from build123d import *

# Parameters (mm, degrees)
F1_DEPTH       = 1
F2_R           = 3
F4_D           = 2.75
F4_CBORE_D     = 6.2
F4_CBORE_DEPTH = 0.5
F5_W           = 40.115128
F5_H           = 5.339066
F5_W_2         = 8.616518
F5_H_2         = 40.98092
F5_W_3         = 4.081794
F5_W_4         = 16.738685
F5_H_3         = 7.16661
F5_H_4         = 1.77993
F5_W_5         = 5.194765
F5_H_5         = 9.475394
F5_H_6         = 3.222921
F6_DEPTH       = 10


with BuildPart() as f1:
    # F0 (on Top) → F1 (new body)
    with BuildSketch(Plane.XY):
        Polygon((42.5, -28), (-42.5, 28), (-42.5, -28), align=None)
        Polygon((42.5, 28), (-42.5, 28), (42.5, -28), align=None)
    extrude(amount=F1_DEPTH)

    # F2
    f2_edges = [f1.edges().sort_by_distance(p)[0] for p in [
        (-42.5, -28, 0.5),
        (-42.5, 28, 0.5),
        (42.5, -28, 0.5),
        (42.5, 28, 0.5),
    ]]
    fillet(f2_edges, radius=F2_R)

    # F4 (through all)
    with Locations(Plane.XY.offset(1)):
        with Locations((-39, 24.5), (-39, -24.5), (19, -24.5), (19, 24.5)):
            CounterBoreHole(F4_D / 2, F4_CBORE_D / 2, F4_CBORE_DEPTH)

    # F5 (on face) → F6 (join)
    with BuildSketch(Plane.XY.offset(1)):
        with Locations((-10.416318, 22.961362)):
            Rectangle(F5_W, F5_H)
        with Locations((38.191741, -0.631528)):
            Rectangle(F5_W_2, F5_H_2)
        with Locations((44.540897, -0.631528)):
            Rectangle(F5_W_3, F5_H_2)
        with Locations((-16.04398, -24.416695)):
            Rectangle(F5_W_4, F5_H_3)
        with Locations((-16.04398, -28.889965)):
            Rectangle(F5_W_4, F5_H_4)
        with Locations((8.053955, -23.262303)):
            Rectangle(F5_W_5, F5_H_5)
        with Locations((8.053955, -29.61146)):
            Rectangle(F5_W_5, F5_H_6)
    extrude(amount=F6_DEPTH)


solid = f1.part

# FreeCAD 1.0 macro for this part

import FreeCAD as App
import Part
import Sketcher
Q = App.Units.Quantity


def edges_at(feature, points):
    """Names of the edges that pass closest to the given points."""
    edges = feature.Shape.Edges
    near = lambda p: min(range(len(edges)), key=lambda i: edges[i].distToShape(Part.Vertex(*p))[0])
    return sorted({f"Edge{near(p) + 1}" for p in points})

doc = App.newDocument("Part")
body = doc.addObject("PartDesign::Body", "Body")

# Sketch on XY plane
sketch1 = doc.addObject("Sketcher::SketchObject", "Sketch")
body.addObject(sketch1)
sketch1.AttachmentSupport = (doc.XY_Plane, [""])
sketch1.MapMode = "FlatFace"
sketch1.addGeometry([
    Part.LineSegment(App.Vector(-42, 28, 0), App.Vector(-42, -28, 0)),
    Part.LineSegment(App.Vector(-42, -28, 0), App.Vector(42, -28, 0)),
    Part.LineSegment(App.Vector(42, -28, 0), App.Vector(42, 28, 0)),
    Part.LineSegment(App.Vector(42, 28, 0), App.Vector(-42, 28, 0)),
], False)
sketch1.addConstraint([
    Sketcher.Constraint("Coincident", 0, 2, 1, 1),
    Sketcher.Constraint("Coincident", 1, 2, 2, 1),
    Sketcher.Constraint("Coincident", 2, 2, 3, 1),
    Sketcher.Constraint("Coincident", 3, 2, 0, 1),
    Sketcher.Constraint("Vertical", 0),
    Sketcher.Constraint("Horizontal", 1),
    Sketcher.Constraint("Vertical", 2),
    Sketcher.Constraint("Horizontal", 3),
    Sketcher.Constraint("Symmetric", 0, 2, 2, 2, -1, 1),
    Sketcher.Constraint("DistanceX", 1, 1, 1, 2, Q("85 mm")),
    Sketcher.Constraint("DistanceY", 0, 2, 0, 1, Q("56 mm")),
])
pad1 = doc.addObject("PartDesign::Pad", "Pad")
body.addObject(pad1)
pad1.Profile = sketch1
pad1.Length = 1
doc.recompute()

fillet = doc.addObject("PartDesign::Fillet", "Fillet")
body.addObject(fillet)
fillet.Base = (pad1, edges_at(pad1, [
    (-42.5, -28, 0.5),
    (-42.5, 28, 0.5),
    (42.5, -28, 0.5),
    (42.5, 28, 0.5),
]))
fillet.Radius = 3

# Sketch on XY plane
sketch2 = doc.addObject("Sketcher::SketchObject", "Sketch001")
body.addObject(sketch2)
sketch2.AttachmentSupport = (doc.XY_Plane, [""])
sketch2.MapMode = "FlatFace"
sketch2.AttachmentOffset = App.Placement(App.Vector(0, 0, 1), App.Rotation())
sketch2.addGeometry([
    Part.Circle(App.Vector(-39, 24.5, 0), App.Vector(0, 0, 1), 1.4),
    Part.Circle(App.Vector(-39, -24.5, 0), App.Vector(0, 0, 1), 1.4),
    Part.Circle(App.Vector(19, -24.5, 0), App.Vector(0, 0, 1), 1.4),
    Part.Circle(App.Vector(19, 24.5, 0), App.Vector(0, 0, 1), 1.4),
], False)
sketch2.addConstraint([
    Sketcher.Constraint("Equal", 0, 1),
    Sketcher.Constraint("Equal", 1, 2),
    Sketcher.Constraint("Equal", 2, 3),
    Sketcher.Constraint("Symmetric", 0, 3, 1, 3, -1),
    Sketcher.Constraint("Symmetric", 2, 3, 3, 3, -1),
    Sketcher.Constraint("Horizontal", 1, 3, 2, 3),
    Sketcher.Constraint("Diameter", 0, Q("2.75 mm")),
    Sketcher.Constraint("DistanceX", 0, 3, -1, 1, Q("39 mm")),
    Sketcher.Constraint("DistanceX", -1, 1, 2, 3, Q("19 mm")),
    Sketcher.Constraint("DistanceY", 1, 3, 0, 3, Q("49 mm")),
])
doc.recompute()
hole = doc.addObject("PartDesign::Hole", "Hole")
body.addObject(hole)
hole.Profile = sketch2
hole.ThreadType = "None"
hole.Diameter = 2.75
hole.DepthType = "ThroughAll"
hole.HoleCutType = "Counterbore"
hole.HoleCutDiameter = 6.2
hole.HoleCutDepth = 0.5

# Sketch on XY plane
sketch3 = doc.addObject("Sketcher::SketchObject", "Sketch002")
body.addObject(sketch3)
sketch3.AttachmentSupport = (doc.XY_Plane, [""])
sketch3.MapMode = "FlatFace"
sketch3.AttachmentOffset = App.Placement(App.Vector(0, 0, 1), App.Rotation())
sketch3.addGeometry([
    Part.LineSegment(App.Vector(-30, 26, 0), App.Vector(-30, 20, 0)),  # 0
    Part.LineSegment(App.Vector(-30, 20, 0), App.Vector(10, 20, 0)),  # 1
    Part.LineSegment(App.Vector(10, 20, 0), App.Vector(10, 26, 0)),  # 2
    Part.LineSegment(App.Vector(10, 26, 0), App.Vector(-30, 26, 0)),  # 3
    Part.LineSegment(App.Vector(34, 20, 0), App.Vector(34, -21, 0)),  # 4
    Part.LineSegment(App.Vector(34, -21, 0), App.Vector(47, -21, 0)),  # 5
    Part.LineSegment(App.Vector(47, -21, 0), App.Vector(47, 20, 0)),  # 6
    Part.LineSegment(App.Vector(47, 20, 0), App.Vector(34, 20, 0)),  # 7
    Part.LineSegment(App.Vector(-24, -21, 0), App.Vector(-24, -30, 0)),  # 8
    Part.LineSegment(App.Vector(-24, -30, 0), App.Vector(-8, -30, 0)),  # 9
    Part.LineSegment(App.Vector(-8, -30, 0), App.Vector(-8, -21, 0)),  # 10
    Part.LineSegment(App.Vector(-8, -21, 0), App.Vector(-24, -21, 0)),  # 11
    Part.LineSegment(App.Vector(5, -31, 0), App.Vector(11, -31, 0)),  # 12
    Part.LineSegment(App.Vector(11, -31, 0), App.Vector(11, -19, 0)),  # 13
    Part.LineSegment(App.Vector(11, -19, 0), App.Vector(5, -19, 0)),  # 14
    Part.LineSegment(App.Vector(5, -19, 0), App.Vector(5, -31, 0)),  # 15
], False)
sketch3.addConstraint([
    Sketcher.Constraint("Coincident", 0, 2, 1, 1),
    Sketcher.Constraint("Coincident", 1, 2, 2, 1),
    Sketcher.Constraint("Coincident", 2, 2, 3, 1),
    Sketcher.Constraint("Coincident", 3, 2, 0, 1),
    Sketcher.Constraint("Coincident", 4, 2, 5, 1),
    Sketcher.Constraint("Coincident", 5, 2, 6, 1),
    Sketcher.Constraint("Coincident", 6, 2, 7, 1),
    Sketcher.Constraint("Coincident", 7, 2, 4, 1),
    Sketcher.Constraint("Coincident", 8, 2, 9, 1),
    Sketcher.Constraint("Coincident", 9, 2, 10, 1),
    Sketcher.Constraint("Coincident", 10, 2, 11, 1),
    Sketcher.Constraint("Coincident", 11, 2, 8, 1),
    Sketcher.Constraint("Coincident", 12, 2, 13, 1),
    Sketcher.Constraint("Coincident", 13, 2, 14, 1),
    Sketcher.Constraint("Coincident", 14, 2, 15, 1),
    Sketcher.Constraint("Coincident", 15, 2, 12, 1),
    Sketcher.Constraint("Vertical", 0),
    Sketcher.Constraint("Horizontal", 1),
    Sketcher.Constraint("Vertical", 2),
    Sketcher.Constraint("Horizontal", 3),
    Sketcher.Constraint("Vertical", 4),
    Sketcher.Constraint("Horizontal", 5),
    Sketcher.Constraint("Vertical", 6),
    Sketcher.Constraint("Horizontal", 7),
    Sketcher.Constraint("Vertical", 8),
    Sketcher.Constraint("Horizontal", 9),
    Sketcher.Constraint("Vertical", 10),
    Sketcher.Constraint("Horizontal", 11),
    Sketcher.Constraint("Horizontal", 12),
    Sketcher.Constraint("Vertical", 13),
    Sketcher.Constraint("Horizontal", 14),
    Sketcher.Constraint("Vertical", 15),
    Sketcher.Constraint("DistanceY", 4, 2, 4, 1, Q("40.98092 mm")),
    Sketcher.Constraint("DistanceY", 8, 2, 8, 1, Q("8.94654 mm")),
    Sketcher.Constraint("DistanceY", 4, 2, 10, 2, Q("0.288598 mm")),
    Sketcher.Constraint("DistanceX", 1, 1, 1, 2, Q("40.115128 mm")),
    Sketcher.Constraint("DistanceX", 5, 1, 5, 2, Q("12.698312 mm")),
    Sketcher.Constraint("DistanceX", 9, 1, 9, 2, Q("16.738685 mm")),
    Sketcher.Constraint("DistanceX", 12, 1, 12, 2, Q("5.194765 mm")),
    Sketcher.Constraint("DistanceY", 0, 2, 0, 1, Q("5.339066 mm")),
    Sketcher.Constraint("DistanceY", 13, 1, 13, 2, Q("12.698315 mm")),
    Sketcher.Constraint("DistanceX", 0, 2, -1, 1, Q("30.473882 mm")),
    Sketcher.Constraint("DistanceY", -1, 1, 0, 2, Q("20.291829 mm")),
    Sketcher.Constraint("DistanceY", 4, 2, -1, 1, Q("21.121988 mm")),
    Sketcher.Constraint("DistanceY", 12, 2, -1, 1, Q("31.222921 mm")),
    Sketcher.Constraint("DistanceX", 0, 2, 8, 2, Q("6.06056 mm")),
    Sketcher.Constraint("DistanceX", 9, 2, 4, 2, Q("41.55812 mm")),
    Sketcher.Constraint("DistanceX", 8, 2, 12, 2, Q("35.06466 mm")),
])
pad2 = doc.addObject("PartDesign::Pad", "Pad001")
body.addObject(pad2)
pad2.Profile = sketch3
pad2.Length = 10

doc.recompute()
